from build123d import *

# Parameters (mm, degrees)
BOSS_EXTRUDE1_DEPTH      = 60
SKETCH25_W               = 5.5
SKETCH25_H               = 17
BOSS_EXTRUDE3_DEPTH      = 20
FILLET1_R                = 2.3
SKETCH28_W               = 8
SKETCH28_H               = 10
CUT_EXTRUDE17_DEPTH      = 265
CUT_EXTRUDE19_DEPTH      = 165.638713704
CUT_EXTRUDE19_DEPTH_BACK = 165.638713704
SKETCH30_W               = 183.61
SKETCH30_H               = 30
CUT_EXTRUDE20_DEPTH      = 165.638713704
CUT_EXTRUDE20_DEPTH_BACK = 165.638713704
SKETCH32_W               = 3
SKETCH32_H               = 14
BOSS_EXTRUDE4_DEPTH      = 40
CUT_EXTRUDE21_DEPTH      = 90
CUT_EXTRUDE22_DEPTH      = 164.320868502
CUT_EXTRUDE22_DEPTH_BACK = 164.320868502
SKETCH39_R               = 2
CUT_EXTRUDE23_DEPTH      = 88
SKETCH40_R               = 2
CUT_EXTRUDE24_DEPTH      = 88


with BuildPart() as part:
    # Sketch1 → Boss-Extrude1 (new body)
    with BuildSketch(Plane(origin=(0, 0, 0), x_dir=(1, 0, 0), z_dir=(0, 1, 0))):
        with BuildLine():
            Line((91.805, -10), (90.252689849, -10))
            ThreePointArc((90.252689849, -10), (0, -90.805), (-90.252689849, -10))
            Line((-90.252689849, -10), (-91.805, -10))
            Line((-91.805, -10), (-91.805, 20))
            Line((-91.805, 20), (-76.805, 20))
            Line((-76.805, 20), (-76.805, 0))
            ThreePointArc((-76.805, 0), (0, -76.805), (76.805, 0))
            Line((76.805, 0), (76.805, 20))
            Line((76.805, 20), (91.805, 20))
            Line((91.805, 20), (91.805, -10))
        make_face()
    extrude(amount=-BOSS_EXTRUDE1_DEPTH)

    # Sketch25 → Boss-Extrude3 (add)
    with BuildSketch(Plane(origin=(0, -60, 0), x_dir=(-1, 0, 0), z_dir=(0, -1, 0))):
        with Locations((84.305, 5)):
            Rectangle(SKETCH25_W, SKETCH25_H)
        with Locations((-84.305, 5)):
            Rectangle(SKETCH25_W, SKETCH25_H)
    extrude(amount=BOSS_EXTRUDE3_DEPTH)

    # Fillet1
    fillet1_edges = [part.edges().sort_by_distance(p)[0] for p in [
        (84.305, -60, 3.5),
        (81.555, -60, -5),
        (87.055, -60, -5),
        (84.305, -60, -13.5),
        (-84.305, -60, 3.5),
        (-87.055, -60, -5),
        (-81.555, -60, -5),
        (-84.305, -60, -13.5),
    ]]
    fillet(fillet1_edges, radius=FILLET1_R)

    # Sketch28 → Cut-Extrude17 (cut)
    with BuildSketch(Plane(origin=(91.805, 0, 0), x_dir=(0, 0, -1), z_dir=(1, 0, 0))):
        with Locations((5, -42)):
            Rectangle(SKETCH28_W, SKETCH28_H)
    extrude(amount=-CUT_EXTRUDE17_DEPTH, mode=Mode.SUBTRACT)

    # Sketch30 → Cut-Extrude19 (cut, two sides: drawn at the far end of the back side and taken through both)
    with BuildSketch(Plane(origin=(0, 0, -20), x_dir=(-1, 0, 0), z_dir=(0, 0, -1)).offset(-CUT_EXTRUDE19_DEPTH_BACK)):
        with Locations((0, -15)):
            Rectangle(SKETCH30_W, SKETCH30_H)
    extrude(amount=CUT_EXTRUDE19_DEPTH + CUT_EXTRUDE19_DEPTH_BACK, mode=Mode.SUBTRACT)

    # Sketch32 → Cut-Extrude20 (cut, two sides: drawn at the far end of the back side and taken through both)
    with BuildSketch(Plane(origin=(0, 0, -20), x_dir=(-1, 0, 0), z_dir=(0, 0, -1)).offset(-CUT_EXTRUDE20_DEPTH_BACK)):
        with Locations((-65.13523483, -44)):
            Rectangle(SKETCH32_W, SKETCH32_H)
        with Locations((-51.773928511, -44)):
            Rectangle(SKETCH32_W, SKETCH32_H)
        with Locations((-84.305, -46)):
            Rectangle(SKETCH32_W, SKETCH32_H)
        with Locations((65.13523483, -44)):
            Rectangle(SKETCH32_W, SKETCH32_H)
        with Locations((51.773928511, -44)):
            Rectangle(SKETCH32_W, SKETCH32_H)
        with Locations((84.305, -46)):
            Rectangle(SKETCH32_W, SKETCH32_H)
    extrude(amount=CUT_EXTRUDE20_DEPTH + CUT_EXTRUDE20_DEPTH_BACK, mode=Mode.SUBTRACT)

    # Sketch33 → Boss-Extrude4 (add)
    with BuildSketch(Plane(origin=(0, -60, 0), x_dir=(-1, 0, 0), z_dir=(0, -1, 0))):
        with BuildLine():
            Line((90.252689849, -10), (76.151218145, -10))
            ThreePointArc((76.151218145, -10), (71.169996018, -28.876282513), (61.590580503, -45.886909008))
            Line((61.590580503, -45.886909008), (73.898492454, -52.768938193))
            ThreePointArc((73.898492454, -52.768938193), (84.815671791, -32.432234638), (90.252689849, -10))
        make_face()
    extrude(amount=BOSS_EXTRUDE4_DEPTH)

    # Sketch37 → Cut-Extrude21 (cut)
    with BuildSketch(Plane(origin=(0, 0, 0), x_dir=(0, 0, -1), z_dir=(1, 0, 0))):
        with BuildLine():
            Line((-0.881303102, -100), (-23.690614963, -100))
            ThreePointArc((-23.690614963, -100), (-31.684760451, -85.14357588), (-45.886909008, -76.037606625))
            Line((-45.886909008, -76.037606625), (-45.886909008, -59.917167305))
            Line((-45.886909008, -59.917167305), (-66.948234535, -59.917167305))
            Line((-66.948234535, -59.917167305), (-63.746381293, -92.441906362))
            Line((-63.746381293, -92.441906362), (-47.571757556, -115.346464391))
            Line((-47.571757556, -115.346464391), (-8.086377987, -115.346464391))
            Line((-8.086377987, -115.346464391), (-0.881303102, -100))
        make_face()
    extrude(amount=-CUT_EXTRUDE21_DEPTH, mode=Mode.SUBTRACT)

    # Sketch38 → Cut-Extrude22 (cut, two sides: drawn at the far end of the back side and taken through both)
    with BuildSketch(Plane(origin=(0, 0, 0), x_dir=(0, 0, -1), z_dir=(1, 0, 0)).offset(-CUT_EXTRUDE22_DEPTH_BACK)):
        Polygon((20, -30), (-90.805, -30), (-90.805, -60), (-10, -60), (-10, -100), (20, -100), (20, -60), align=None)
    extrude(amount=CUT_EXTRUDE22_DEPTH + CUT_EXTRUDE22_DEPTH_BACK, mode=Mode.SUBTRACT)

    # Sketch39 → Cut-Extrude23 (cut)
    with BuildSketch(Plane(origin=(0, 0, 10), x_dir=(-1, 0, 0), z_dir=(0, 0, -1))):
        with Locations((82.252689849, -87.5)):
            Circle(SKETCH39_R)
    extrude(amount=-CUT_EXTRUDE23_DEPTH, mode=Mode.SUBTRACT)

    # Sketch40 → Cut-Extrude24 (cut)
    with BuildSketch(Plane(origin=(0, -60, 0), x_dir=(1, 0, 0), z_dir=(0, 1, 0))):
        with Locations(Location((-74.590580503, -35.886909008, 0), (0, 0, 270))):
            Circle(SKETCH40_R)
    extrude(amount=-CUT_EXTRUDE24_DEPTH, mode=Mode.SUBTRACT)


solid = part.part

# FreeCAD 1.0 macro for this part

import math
import FreeCAD as App
import Part
import Sketcher

V = App.Vector


def edges_at(feature, points):
    """Names of the edges that pass closest to the given points."""
    edges = feature.Shape.Edges
    near = lambda p: min(range(len(edges)), key=lambda i: edges[i].distToShape(Part.Vertex(*p))[0])
    return sorted({f"Edge{near(p) + 1}" for p in points})

doc = App.newDocument("Part")
body = doc.addObject("PartDesign::Body", "Body")

# Sketch on XZ plane
sketch1 = doc.addObject("Sketcher::SketchObject", "Sketch")
body.addObject(sketch1)
sketch1.AttachmentSupport = (doc.XZ_Plane, [""])
sketch1.MapMode = "FlatFace"
sketch1.addGeometry(Part.LineSegment(V(90.3, 10, 0), V(91.8, 10, 0)), False)
sketch1.addGeometry(Part.LineSegment(V(91.8, 10, 0), V(91.8, -20, 0)), False)
sketch1.addGeometry(Part.LineSegment(V(91.8, -20, 0), V(76.8, -20, 0)), False)
sketch1.addGeometry(Part.LineSegment(V(76.8, -20, 0), V(76.8, 0, 0)), False)
sketch1.addGeometry(Part.ArcOfCircle(Part.Circle(V(0, 0, 0), V(0, 0, 1), 76.8), math.radians(0), math.radians(180)), False)
sketch1.addGeometry(Part.LineSegment(V(-76.8, 0, 0), V(-76.8, -20, 0)), False)
sketch1.addGeometry(Part.LineSegment(V(-76.8, -20, 0), V(-91.8, -20, 0)), False)
sketch1.addGeometry(Part.LineSegment(V(-91.8, -20, 0), V(-91.8, 10, 0)), False)
sketch1.addGeometry(Part.LineSegment(V(-91.8, 10, 0), V(-90.3, 10, 0)), False)
sketch1.addGeometry(Part.ArcOfCircle(Part.Circle(V(0, 0, 0), V(0, 0, 1), 90.8), math.radians(6), math.radians(174)), False)
sketch1.addConstraint(Sketcher.Constraint("Coincident", 0, 2, 1, 1))
sketch1.addConstraint(Sketcher.Constraint("Coincident", 1, 2, 2, 1))
sketch1.addConstraint(Sketcher.Constraint("Coincident", 2, 2, 3, 1))
sketch1.addConstraint(Sketcher.Constraint("Tangent", 3, 2, 4, 1))
sketch1.addConstraint(Sketcher.Constraint("Tangent", 4, 2, 5, 1))
sketch1.addConstraint(Sketcher.Constraint("Coincident", 5, 2, 6, 1))
sketch1.addConstraint(Sketcher.Constraint("Coincident", 6, 2, 7, 1))
sketch1.addConstraint(Sketcher.Constraint("Coincident", 7, 2, 8, 1))
sketch1.addConstraint(Sketcher.Constraint("Coincident", 8, 2, 9, 2))
sketch1.addConstraint(Sketcher.Constraint("Coincident", 9, 1, 0, 1))
sketch1.addConstraint(Sketcher.Constraint("Horizontal", 0))
sketch1.addConstraint(Sketcher.Constraint("Vertical", 1))
sketch1.addConstraint(Sketcher.Constraint("Horizontal", 2))
sketch1.addConstraint(Sketcher.Constraint("Vertical", 3))
sketch1.addConstraint(Sketcher.Constraint("Vertical", 5))
sketch1.addConstraint(Sketcher.Constraint("Horizontal", 6))
sketch1.addConstraint(Sketcher.Constraint("Vertical", 7))
sketch1.addConstraint(Sketcher.Constraint("Horizontal", 8))
sketch1.addConstraint(Sketcher.Constraint("Coincident", 4, 3, -1, 1))
sketch1.addConstraint(Sketcher.Constraint("Coincident", 9, 3, -1, 1))
sketch1.addConstraint(Sketcher.Constraint("Symmetric", 1, 2, 6, 2, -2))
sketch1.addConstraint(Sketcher.Constraint("Horizontal", 0, 2, 7, 2))
sketch1.addConstraint(Sketcher.Constraint("DistanceX", 2, 2, 2, 1, 15.0))
sketch1.addConstraint(Sketcher.Constraint("DistanceY", 1, 2, 1, 1, 30.0))
sketch1.addConstraint(Sketcher.Constraint("DistanceY", 3, 1, 3, 2, 20.0))
sketch1.addConstraint(Sketcher.Constraint("Radius", 4, 76.805))
sketch1.addConstraint(Sketcher.Constraint("Radius", 9, 90.805))
pad1 = doc.addObject("PartDesign::Pad", "Pad")
body.addObject(pad1)
pad1.Profile = sketch1
pad1.Length = 60

# Sketch on XZ plane
sketch2 = doc.addObject("Sketcher::SketchObject", "Sketch001")
body.addObject(sketch2)
sketch2.AttachmentSupport = (doc.XZ_Plane, [""])
sketch2.MapMode = "FlatFace"
sketch2.AttachmentOffset = App.Placement(V(0, 0, 60), App.Rotation())
sketch2.addGeometry(Part.LineSegment(V(-82, -14, 0), V(-82, 4, 0)), False)
sketch2.addGeometry(Part.LineSegment(V(-82, 4, 0), V(-87, 4, 0)), False)
sketch2.addGeometry(Part.LineSegment(V(-87, 4, 0), V(-87, -14, 0)), False)
sketch2.addGeometry(Part.LineSegment(V(-87, -14, 0), V(-82, -14, 0)), False)
sketch2.addGeometry(Part.LineSegment(V(87, -14, 0), V(87, 4, 0)), False)
sketch2.addGeometry(Part.LineSegment(V(87, 4, 0), V(82, 4, 0)), False)
sketch2.addGeometry(Part.LineSegment(V(82, 4, 0), V(82, -14, 0)), False)
sketch2.addGeometry(Part.LineSegment(V(82, -14, 0), V(87, -14, 0)), False)
sketch2.addConstraint(Sketcher.Constraint("Coincident", 0, 2, 1, 1))
sketch2.addConstraint(Sketcher.Constraint("Coincident", 1, 2, 2, 1))
sketch2.addConstraint(Sketcher.Constraint("Coincident", 2, 2, 3, 1))
sketch2.addConstraint(Sketcher.Constraint("Coincident", 3, 2, 0, 1))
sketch2.addConstraint(Sketcher.Constraint("Coincident", 4, 2, 5, 1))
sketch2.addConstraint(Sketcher.Constraint("Coincident", 5, 2, 6, 1))
sketch2.addConstraint(Sketcher.Constraint("Coincident", 6, 2, 7, 1))
sketch2.addConstraint(Sketcher.Constraint("Coincident", 7, 2, 4, 1))
sketch2.addConstraint(Sketcher.Constraint("Vertical", 0))
sketch2.addConstraint(Sketcher.Constraint("Horizontal", 1))
sketch2.addConstraint(Sketcher.Constraint("Vertical", 2))
sketch2.addConstraint(Sketcher.Constraint("Horizontal", 3))
sketch2.addConstraint(Sketcher.Constraint("Vertical", 4))
sketch2.addConstraint(Sketcher.Constraint("Horizontal", 5))
sketch2.addConstraint(Sketcher.Constraint("Vertical", 6))
sketch2.addConstraint(Sketcher.Constraint("Horizontal", 7))
sketch2.addConstraint(Sketcher.Constraint("Symmetric", 1, 2, 4, 2, -2))
sketch2.addConstraint(Sketcher.Constraint("Symmetric", 3, 2, 6, 2, -2))
sketch2.addConstraint(Sketcher.Constraint("DistanceY", 0, 1, 0, 2, 17.0))
sketch2.addConstraint(Sketcher.Constraint("DistanceX", 1, 2, 1, 1, 5.5))
sketch2.addConstraint(Sketcher.Constraint("DistanceY", -1, 1, 0, 2, 3.5))
sketch2.addConstraint(Sketcher.Constraint("DistanceX", 0, 2, 4, 2, 168.61))
pad2 = doc.addObject("PartDesign::Pad", "Pad001")
body.addObject(pad2)
pad2.Profile = sketch2
pad2.Length = 20
doc.recompute()

fillet = doc.addObject("PartDesign::Fillet", "Fillet")
body.addObject(fillet)
fillet.Base = (pad2, edges_at(pad2, [
    (84.305, -60, 3.5),
    (81.555, -60, -5),
    (87.055, -60, -5),
    (84.305, -60, -13.5),
    (-84.305, -60, 3.5),
    (-87.055, -60, -5),
    (-81.555, -60, -5),
    (-84.305, -60, -13.5),
]))
fillet.Radius = 2.3

# Sketch on YZ plane
sketch3 = doc.addObject("Sketcher::SketchObject", "Sketch002")
body.addObject(sketch3)
sketch3.AttachmentSupport = (doc.YZ_Plane, [""])
sketch3.MapMode = "FlatFace"
sketch3.AttachmentOffset = App.Placement(V(0, 0, 91.805), App.Rotation())
sketch3.addGeometry(Part.LineSegment(V(-37, -1, 0), V(-47, -1, 0)), False)
sketch3.addGeometry(Part.LineSegment(V(-47, -1, 0), V(-47, -9, 0)), False)
sketch3.addGeometry(Part.LineSegment(V(-47, -9, 0), V(-37, -9, 0)), False)
sketch3.addGeometry(Part.LineSegment(V(-37, -9, 0), V(-37, -1, 0)), False)
sketch3.addConstraint(Sketcher.Constraint("Coincident", 0, 2, 1, 1))
sketch3.addConstraint(Sketcher.Constraint("Coincident", 1, 2, 2, 1))
sketch3.addConstraint(Sketcher.Constraint("Coincident", 2, 2, 3, 1))
sketch3.addConstraint(Sketcher.Constraint("Coincident", 3, 2, 0, 1))
sketch3.addConstraint(Sketcher.Constraint("Horizontal", 0))
sketch3.addConstraint(Sketcher.Constraint("Vertical", 1))
sketch3.addConstraint(Sketcher.Constraint("Horizontal", 2))
sketch3.addConstraint(Sketcher.Constraint("Vertical", 3))
sketch3.addConstraint(Sketcher.Constraint("DistanceX", 0, 2, 0, 1, 10.0))
sketch3.addConstraint(Sketcher.Constraint("DistanceY", 1, 2, 1, 1, 8.0))
sketch3.addConstraint(Sketcher.Constraint("DistanceX", 0, 2, -1, 1, 47.0))
sketch3.addConstraint(Sketcher.Constraint("DistanceY", 0, 2, -1, 1, 1.0))
pocket1 = doc.addObject("PartDesign::Pocket", "Pocket")
body.addObject(pocket1)
pocket1.Profile = sketch3
pocket1.Length = 265

# Sketch on XY plane
sketch4 = doc.addObject("Sketcher::SketchObject", "Sketch003")
body.addObject(sketch4)
sketch4.AttachmentSupport = (doc.XY_Plane, [""])
sketch4.MapMode = "FlatFace"
sketch4.AttachmentOffset = App.Placement(V(0, 0, -20), App.Rotation())
sketch4.addGeometry(Part.LineSegment(V(92, 0, 0), V(92, -30, 0)), False)
sketch4.addGeometry(Part.LineSegment(V(92, -30, 0), V(-92, -30, 0)), False)
sketch4.addGeometry(Part.LineSegment(V(-92, -30, 0), V(-92, 0, 0)), False)
sketch4.addGeometry(Part.LineSegment(V(-92, 0, 0), V(92, 0, 0)), False)
sketch4.addConstraint(Sketcher.Constraint("Coincident", 0, 2, 1, 1))
sketch4.addConstraint(Sketcher.Constraint("Coincident", 1, 2, 2, 1))
sketch4.addConstraint(Sketcher.Constraint("Coincident", 2, 2, 3, 1))
sketch4.addConstraint(Sketcher.Constraint("Coincident", 3, 2, 0, 1))
sketch4.addConstraint(Sketcher.Constraint("Vertical", 0))
sketch4.addConstraint(Sketcher.Constraint("Horizontal", 1))
sketch4.addConstraint(Sketcher.Constraint("Vertical", 2))
sketch4.addConstraint(Sketcher.Constraint("Horizontal", 3))
sketch4.addConstraint(Sketcher.Constraint("Symmetric", 2, 2, 3, 2, -1, 1))
sketch4.addConstraint(Sketcher.Constraint("DistanceY", 0, 2, 0, 1, 30.0))
sketch4.addConstraint(Sketcher.Constraint("DistanceX", 1, 2, 1, 1, 183.61))
pocket2 = doc.addObject("PartDesign::Pocket", "Pocket001")
body.addObject(pocket2)
pocket2.Profile = sketch4
pocket2.Type = "ThroughAll"
pocket2.Midplane = True

# Sketch on XY plane
sketch5 = doc.addObject("Sketcher::SketchObject", "Sketch004")
body.addObject(sketch5)
sketch5.AttachmentSupport = (doc.XY_Plane, [""])
sketch5.MapMode = "FlatFace"
sketch5.AttachmentOffset = App.Placement(V(0, 0, -20), App.Rotation())
sketch5.addGeometry(Part.LineSegment(V(66.6, -37, 0), V(66.6, -51, 0)), False)
sketch5.addGeometry(Part.LineSegment(V(66.6, -51, 0), V(63.6, -51, 0)), False)
sketch5.addGeometry(Part.LineSegment(V(63.6, -51, 0), V(63.6, -37, 0)), False)
sketch5.addGeometry(Part.LineSegment(V(63.6, -37, 0), V(66.6, -37, 0)), False)
sketch5.addGeometry(Part.LineSegment(V(53.3, -37, 0), V(53.3, -51, 0)), False)
sketch5.addGeometry(Part.LineSegment(V(53.3, -51, 0), V(50.3, -51, 0)), False)
sketch5.addGeometry(Part.LineSegment(V(50.3, -51, 0), V(50.3, -37, 0)), False)
sketch5.addGeometry(Part.LineSegment(V(50.3, -37, 0), V(53.3, -37, 0)), False)
sketch5.addGeometry(Part.LineSegment(V(85.8, -39, 0), V(85.8, -53, 0)), False)
sketch5.addGeometry(Part.LineSegment(V(85.8, -53, 0), V(82.8, -53, 0)), False)
sketch5.addGeometry(Part.LineSegment(V(82.8, -53, 0), V(82.8, -39, 0)), False)
sketch5.addGeometry(Part.LineSegment(V(82.8, -39, 0), V(85.8, -39, 0)), False)
sketch5.addGeometry(Part.LineSegment(V(-63.6, -37, 0), V(-63.6, -51, 0)), False)
sketch5.addGeometry(Part.LineSegment(V(-63.6, -51, 0), V(-66.6, -51, 0)), False)
sketch5.addGeometry(Part.LineSegment(V(-66.6, -51, 0), V(-66.6, -37, 0)), False)
sketch5.addGeometry(Part.LineSegment(V(-66.6, -37, 0), V(-63.6, -37, 0)), False)
sketch5.addGeometry(Part.LineSegment(V(-50.3, -37, 0), V(-50.3, -51, 0)), False)
sketch5.addGeometry(Part.LineSegment(V(-50.3, -51, 0), V(-53.3, -51, 0)), False)
sketch5.addGeometry(Part.LineSegment(V(-53.3, -51, 0), V(-53.3, -37, 0)), False)
sketch5.addGeometry(Part.LineSegment(V(-53.3, -37, 0), V(-50.3, -37, 0)), False)
sketch5.addGeometry(Part.LineSegment(V(-82.8, -39, 0), V(-82.8, -53, 0)), False)
sketch5.addGeometry(Part.LineSegment(V(-82.8, -53, 0), V(-85.8, -53, 0)), False)
sketch5.addGeometry(Part.LineSegment(V(-85.8, -53, 0), V(-85.8, -39, 0)), False)
sketch5.addGeometry(Part.LineSegment(V(-85.8, -39, 0), V(-82.8, -39, 0)), False)
sketch5.addConstraint(Sketcher.Constraint("Coincident", 0, 2, 1, 1))
sketch5.addConstraint(Sketcher.Constraint("Coincident", 1, 2, 2, 1))
sketch5.addConstraint(Sketcher.Constraint("Coincident", 2, 2, 3, 1))
sketch5.addConstraint(Sketcher.Constraint("Coincident", 3, 2, 0, 1))
sketch5.addConstraint(Sketcher.Constraint("Coincident", 4, 2, 5, 1))
sketch5.addConstraint(Sketcher.Constraint("Coincident", 5, 2, 6, 1))
sketch5.addConstraint(Sketcher.Constraint("Coincident", 6, 2, 7, 1))
sketch5.addConstraint(Sketcher.Constraint("Coincident", 7, 2, 4, 1))
sketch5.addConstraint(Sketcher.Constraint("Coincident", 8, 2, 9, 1))
sketch5.addConstraint(Sketcher.Constraint("Coincident", 9, 2, 10, 1))
sketch5.addConstraint(Sketcher.Constraint("Coincident", 10, 2, 11, 1))
sketch5.addConstraint(Sketcher.Constraint("Coincident", 11, 2, 8, 1))
sketch5.addConstraint(Sketcher.Constraint("Coincident", 12, 2, 13, 1))
sketch5.addConstraint(Sketcher.Constraint("Coincident", 13, 2, 14, 1))
sketch5.addConstraint(Sketcher.Constraint("Coincident", 14, 2, 15, 1))
sketch5.addConstraint(Sketcher.Constraint("Coincident", 15, 2, 12, 1))
sketch5.addConstraint(Sketcher.Constraint("Coincident", 16, 2, 17, 1))
sketch5.addConstraint(Sketcher.Constraint("Coincident", 17, 2, 18, 1))
sketch5.addConstraint(Sketcher.Constraint("Coincident", 18, 2, 19, 1))
sketch5.addConstraint(Sketcher.Constraint("Coincident", 19, 2, 16, 1))
sketch5.addConstraint(Sketcher.Constraint("Coincident", 20, 2, 21, 1))
sketch5.addConstraint(Sketcher.Constraint("Coincident", 21, 2, 22, 1))
sketch5.addConstraint(Sketcher.Constraint("Coincident", 22, 2, 23, 1))
sketch5.addConstraint(Sketcher.Constraint("Coincident", 23, 2, 20, 1))
sketch5.addConstraint(Sketcher.Constraint("Vertical", 0))
sketch5.addConstraint(Sketcher.Constraint("Horizontal", 1))
sketch5.addConstraint(Sketcher.Constraint("Vertical", 2))
sketch5.addConstraint(Sketcher.Constraint("Horizontal", 3))
sketch5.addConstraint(Sketcher.Constraint("Vertical", 4))
sketch5.addConstraint(Sketcher.Constraint("Horizontal", 5))
sketch5.addConstraint(Sketcher.Constraint("Vertical", 6))
sketch5.addConstraint(Sketcher.Constraint("Horizontal", 7))
sketch5.addConstraint(Sketcher.Constraint("Vertical", 8))
sketch5.addConstraint(Sketcher.Constraint("Horizontal", 9))
sketch5.addConstraint(Sketcher.Constraint("Vertical", 10))
sketch5.addConstraint(Sketcher.Constraint("Horizontal", 11))
sketch5.addConstraint(Sketcher.Constraint("Vertical", 12))
sketch5.addConstraint(Sketcher.Constraint("Horizontal", 13))
sketch5.addConstraint(Sketcher.Constraint("Vertical", 14))
sketch5.addConstraint(Sketcher.Constraint("Horizontal", 15))
sketch5.addConstraint(Sketcher.Constraint("Vertical", 16))
sketch5.addConstraint(Sketcher.Constraint("Horizontal", 17))
sketch5.addConstraint(Sketcher.Constraint("Vertical", 18))
sketch5.addConstraint(Sketcher.Constraint("Horizontal", 19))
sketch5.addConstraint(Sketcher.Constraint("Vertical", 20))
sketch5.addConstraint(Sketcher.Constraint("Horizontal", 21))
sketch5.addConstraint(Sketcher.Constraint("Vertical", 22))
sketch5.addConstraint(Sketcher.Constraint("Horizontal", 23))
sketch5.addConstraint(Sketcher.Constraint("Symmetric", 1, 2, 12, 2, -2))
sketch5.addConstraint(Sketcher.Constraint("Symmetric", 3, 2, 14, 2, -2))
sketch5.addConstraint(Sketcher.Constraint("Symmetric", 5, 2, 16, 2, -2))
sketch5.addConstraint(Sketcher.Constraint("Symmetric", 7, 2, 18, 2, -2))
sketch5.addConstraint(Sketcher.Constraint("Symmetric", 9, 2, 20, 2, -2))
sketch5.addConstraint(Sketcher.Constraint("Symmetric", 11, 2, 22, 2, -2))
sketch5.addConstraint(Sketcher.Constraint("Horizontal", 1, 2, 4, 2))
sketch5.addConstraint(Sketcher.Constraint("Horizontal", 3, 2, 6, 2))
sketch5.addConstraint(Sketcher.Constraint("Equal", 3, 5))
sketch5.addConstraint(Sketcher.Constraint("Equal", 7, 9))
sketch5.addConstraint(Sketcher.Constraint("Equal", 6, 8))
sketch5.addConstraint(Sketcher.Constraint("DistanceX", 1, 2, 1, 1, 3.0))
sketch5.addConstraint(Sketcher.Constraint("DistanceY", 0, 2, 0, 1, 14.0))
sketch5.addConstraint(Sketcher.Constraint("DistanceY", 0, 2, -1, 1, 51.0))
sketch5.addConstraint(Sketcher.Constraint("DistanceY", 8, 2, -1, 1, 53.0))
sketch5.addConstraint(Sketcher.Constraint("DistanceX", -1, 1, 8, 2, 85.805))
sketch5.addConstraint(Sketcher.Constraint("DistanceX", -1, 1, 4, 2, 53.273929))
sketch5.addConstraint(Sketcher.Constraint("DistanceX", 12, 2, 1, 2, 127.27047))
pocket3 = doc.addObject("PartDesign::Pocket", "Pocket002")
body.addObject(pocket3)
pocket3.Profile = sketch5
pocket3.Type = "ThroughAll"
pocket3.Midplane = True

# Sketch on XZ plane
sketch6 = doc.addObject("Sketcher::SketchObject", "Sketch005")
body.addObject(sketch6)
sketch6.AttachmentSupport = (doc.XZ_Plane, [""])
sketch6.MapMode = "FlatFace"
sketch6.AttachmentOffset = App.Placement(V(0, 0, 60), App.Rotation())
sketch6.addGeometry(Part.LineSegment(V(-90, 10, 0), V(-76, 10, 0)), False)
sketch6.addGeometry(Part.ArcOfCircle(Part.Circle(V(0, 0, 0), V(0, 0, 1), 77), math.radians(143), math.radians(173)), False)
sketch6.addGeometry(Part.LineSegment(V(-62, 46, 0), V(-74, 53, 0)), False)
sketch6.addGeometry(Part.ArcOfCircle(Part.Circle(V(0, 0, 0), V(0, 0, 1), 91), math.radians(144), math.radians(174)), False)
sketch6.addConstraint(Sketcher.Constraint("Coincident", 0, 2, 1, 2))
sketch6.addConstraint(Sketcher.Constraint("Coincident", 1, 1, 2, 1))
sketch6.addConstraint(Sketcher.Constraint("Coincident", 2, 2, 3, 1))
sketch6.addConstraint(Sketcher.Constraint("Coincident", 3, 2, 0, 1))
sketch6.addConstraint(Sketcher.Constraint("Horizontal", 0))
sketch6.addConstraint(Sketcher.Constraint("Coincident", 1, 3, -1, 1))
sketch6.addConstraint(Sketcher.Constraint("Coincident", 3, 3, -1, 1))
sketch6.addConstraint(Sketcher.Constraint("DistanceY", -1, 1, 0, 2, 10.0))
sketch6.addConstraint(Sketcher.Constraint("Radius", 1, 76.805))
sketch6.addConstraint(Sketcher.Constraint("Radius", 3, 90.805))
sketch6.addConstraint(Sketcher.Constraint("DistanceX", 1, 1, -1, 1, 61.590581))
sketch6.addConstraint(Sketcher.Constraint("DistanceY", -1, 1, 2, 2, 52.768938))
pad3 = doc.addObject("PartDesign::Pad", "Pad002")
body.addObject(pad3)
pad3.Profile = sketch6
pad3.Length = 40

# Sketch on YZ plane
sketch7 = doc.addObject("Sketcher::SketchObject", "Sketch006")
body.addObject(sketch7)
sketch7.AttachmentSupport = (doc.YZ_Plane, [""])
sketch7.MapMode = "FlatFace"
sketch7.addGeometry(Part.LineSegment(V(-100, 1, 0), V(-100, 24, 0)), False)
sketch7.addGeometry(Part.ArcOfCircle(Part.Circle(V(-108, 56, 0), V(0, 0, 1), 34), math.radians(-76), math.radians(-18)), False)
sketch7.addGeometry(Part.LineSegment(V(-76, 46, 0), V(-60, 46, 0)), False)
sketch7.addGeometry(Part.LineSegment(V(-60, 46, 0), V(-60, 67, 0)), False)
sketch7.addGeometry(Part.LineSegment(V(-60, 67, 0), V(-92, 64, 0)), False)
sketch7.addGeometry(Part.LineSegment(V(-92, 64, 0), V(-115, 48, 0)), False)
sketch7.addGeometry(Part.LineSegment(V(-115, 48, 0), V(-115, 8, 0)), False)
sketch7.addGeometry(Part.LineSegment(V(-115, 8, 0), V(-100, 1, 0)), False)
sketch7.addConstraint(Sketcher.Constraint("Coincident", 0, 2, 1, 1))
sketch7.addConstraint(Sketcher.Constraint("Coincident", 1, 2, 2, 1))
sketch7.addConstraint(Sketcher.Constraint("Coincident", 2, 2, 3, 1))
sketch7.addConstraint(Sketcher.Constraint("Coincident", 3, 2, 4, 1))
sketch7.addConstraint(Sketcher.Constraint("Coincident", 4, 2, 5, 1))
sketch7.addConstraint(Sketcher.Constraint("Coincident", 5, 2, 6, 1))
sketch7.addConstraint(Sketcher.Constraint("Coincident", 6, 2, 7, 1))
sketch7.addConstraint(Sketcher.Constraint("Coincident", 7, 2, 0, 1))
sketch7.addConstraint(Sketcher.Constraint("Vertical", 0))
sketch7.addConstraint(Sketcher.Constraint("Horizontal", 2))
sketch7.addConstraint(Sketcher.Constraint("Vertical", 3))
sketch7.addConstraint(Sketcher.Constraint("Vertical", 6))
sketch7.addConstraint(Sketcher.Constraint("DistanceX", 0, 2, -1, 1, 100.0))
sketch7.addConstraint(Sketcher.Constraint("Radius", 1, 33.634666))
sketch7.addConstraint(Sketcher.Constraint("DistanceX", 1, 3, 2, 2, 48.083))
sketch7.addConstraint(Sketcher.Constraint("DistanceX", 2, 1, 2, 2, 16.120439))
sketch7.addConstraint(Sketcher.Constraint("DistanceY", 0, 1, 0, 2, 22.809312))
sketch7.addConstraint(Sketcher.Constraint("DistanceY", 6, 2, 6, 1, 39.48538))
sketch7.addConstraint(Sketcher.Constraint("DistanceX", 4, 2, 1, 2, 16.4043))
sketch7.addConstraint(Sketcher.Constraint("Distance", 4, 32.68196))
sketch7.addConstraint(Sketcher.Constraint("DistanceY", 3, 1, 3, 2, 21.061326))
sketch7.addConstraint(Sketcher.Constraint("DistanceY", -1, 1, 1, 3, 56.35999))
sketch7.addConstraint(Sketcher.Constraint("DistanceY", 0, 2, 3, 2, 43.25762))
sketch7.addConstraint(Sketcher.Constraint("DistanceX", 5, 2, 4, 2, 22.904558))
sketch7.addConstraint(Sketcher.Constraint("DistanceY", 1, 2, 5, 2, 1.684849))
pocket4 = doc.addObject("PartDesign::Pocket", "Pocket003")
body.addObject(pocket4)
pocket4.Profile = sketch7
pocket4.Length = 90

# Sketch on YZ plane
sketch8 = doc.addObject("Sketcher::SketchObject", "Sketch007")
body.addObject(sketch8)
sketch8.AttachmentSupport = (doc.YZ_Plane, [""])
sketch8.MapMode = "FlatFace"
sketch8.addGeometry(Part.LineSegment(V(-30, -20, 0), V(-30, 91, 0)), False)
sketch8.addGeometry(Part.LineSegment(V(-30, 91, 0), V(-60, 91, 0)), False)
sketch8.addGeometry(Part.LineSegment(V(-60, 91, 0), V(-60, 10, 0)), False)
sketch8.addGeometry(Part.LineSegment(V(-60, 10, 0), V(-100, 10, 0)), False)
sketch8.addGeometry(Part.LineSegment(V(-100, 10, 0), V(-100, -20, 0)), False)
sketch8.addGeometry(Part.LineSegment(V(-100, -20, 0), V(-30, -20, 0)), False)
sketch8.addConstraint(Sketcher.Constraint("Coincident", 0, 2, 1, 1))
sketch8.addConstraint(Sketcher.Constraint("Coincident", 1, 2, 2, 1))
sketch8.addConstraint(Sketcher.Constraint("Coincident", 2, 2, 3, 1))
sketch8.addConstraint(Sketcher.Constraint("Coincident", 3, 2, 4, 1))
sketch8.addConstraint(Sketcher.Constraint("Coincident", 4, 2, 5, 1))
sketch8.addConstraint(Sketcher.Constraint("Coincident", 5, 2, 0, 1))
sketch8.addConstraint(Sketcher.Constraint("Vertical", 0))
sketch8.addConstraint(Sketcher.Constraint("Horizontal", 1))
sketch8.addConstraint(Sketcher.Constraint("Vertical", 2))
sketch8.addConstraint(Sketcher.Constraint("Horizontal", 3))
sketch8.addConstraint(Sketcher.Constraint("Vertical", 4))
sketch8.addConstraint(Sketcher.Constraint("Horizontal", 5))
sketch8.addConstraint(Sketcher.Constraint("Equal", 1, 4))
sketch8.addConstraint(Sketcher.Constraint("DistanceX", 1, 2, 1, 1, 30.0))
sketch8.addConstraint(Sketcher.Constraint("DistanceX", 3, 2, 3, 1, 40.0))
sketch8.addConstraint(Sketcher.Constraint("DistanceX", 0, 2, -1, 1, 30.0))
sketch8.addConstraint(Sketcher.Constraint("DistanceY", -1, 1, 2, 2, 10.0))
sketch8.addConstraint(Sketcher.Constraint("DistanceY", 0, 1, 0, 2, 110.805))
pocket5 = doc.addObject("PartDesign::Pocket", "Pocket004")
body.addObject(pocket5)
pocket5.Profile = sketch8
pocket5.Type = "ThroughAll"
pocket5.Midplane = True

# Sketch on XY plane
sketch9 = doc.addObject("Sketcher::SketchObject", "Sketch008")
body.addObject(sketch9)
sketch9.AttachmentSupport = (doc.XY_Plane, [""])
sketch9.MapMode = "FlatFace"
sketch9.AttachmentOffset = App.Placement(V(0, 0, 10), App.Rotation())
sketch9.addGeometry(Part.Circle(V(-82.3, -87.5, 0), V(0, 0, 1), 2), False)
sketch9.addConstraint(Sketcher.Constraint("Diameter", 0, 4.0))
sketch9.addConstraint(Sketcher.Constraint("DistanceY", 0, 3, -1, 1, 87.5))
sketch9.addConstraint(Sketcher.Constraint("DistanceX", 0, 3, -1, 1, 82.25269))
pocket6 = doc.addObject("PartDesign::Pocket", "Pocket005")
body.addObject(pocket6)
pocket6.Profile = sketch9
pocket6.Length = 88
pocket6.Reversed = True

# Sketch on XZ plane
sketch10 = doc.addObject("Sketcher::SketchObject", "Sketch009")
body.addObject(sketch10)
sketch10.AttachmentSupport = (doc.XZ_Plane, [""])
sketch10.MapMode = "FlatFace"
sketch10.AttachmentOffset = App.Placement(V(0, 0, 60), App.Rotation())
sketch10.addGeometry(Part.Circle(V(-74.6, 35.9, 0), V(0, 0, 1), 2), False)
sketch10.addConstraint(Sketcher.Constraint("Diameter", 0, 4.0))
sketch10.addConstraint(Sketcher.Constraint("DistanceX", 0, 3, -1, 1, 74.590581))
sketch10.addConstraint(Sketcher.Constraint("DistanceY", -1, 1, 0, 3, 35.886909))
pocket7 = doc.addObject("PartDesign::Pocket", "Pocket006")
body.addObject(pocket7)
pocket7.Profile = sketch10
pocket7.Length = 88
pocket7.Reversed = True

doc.recompute()
